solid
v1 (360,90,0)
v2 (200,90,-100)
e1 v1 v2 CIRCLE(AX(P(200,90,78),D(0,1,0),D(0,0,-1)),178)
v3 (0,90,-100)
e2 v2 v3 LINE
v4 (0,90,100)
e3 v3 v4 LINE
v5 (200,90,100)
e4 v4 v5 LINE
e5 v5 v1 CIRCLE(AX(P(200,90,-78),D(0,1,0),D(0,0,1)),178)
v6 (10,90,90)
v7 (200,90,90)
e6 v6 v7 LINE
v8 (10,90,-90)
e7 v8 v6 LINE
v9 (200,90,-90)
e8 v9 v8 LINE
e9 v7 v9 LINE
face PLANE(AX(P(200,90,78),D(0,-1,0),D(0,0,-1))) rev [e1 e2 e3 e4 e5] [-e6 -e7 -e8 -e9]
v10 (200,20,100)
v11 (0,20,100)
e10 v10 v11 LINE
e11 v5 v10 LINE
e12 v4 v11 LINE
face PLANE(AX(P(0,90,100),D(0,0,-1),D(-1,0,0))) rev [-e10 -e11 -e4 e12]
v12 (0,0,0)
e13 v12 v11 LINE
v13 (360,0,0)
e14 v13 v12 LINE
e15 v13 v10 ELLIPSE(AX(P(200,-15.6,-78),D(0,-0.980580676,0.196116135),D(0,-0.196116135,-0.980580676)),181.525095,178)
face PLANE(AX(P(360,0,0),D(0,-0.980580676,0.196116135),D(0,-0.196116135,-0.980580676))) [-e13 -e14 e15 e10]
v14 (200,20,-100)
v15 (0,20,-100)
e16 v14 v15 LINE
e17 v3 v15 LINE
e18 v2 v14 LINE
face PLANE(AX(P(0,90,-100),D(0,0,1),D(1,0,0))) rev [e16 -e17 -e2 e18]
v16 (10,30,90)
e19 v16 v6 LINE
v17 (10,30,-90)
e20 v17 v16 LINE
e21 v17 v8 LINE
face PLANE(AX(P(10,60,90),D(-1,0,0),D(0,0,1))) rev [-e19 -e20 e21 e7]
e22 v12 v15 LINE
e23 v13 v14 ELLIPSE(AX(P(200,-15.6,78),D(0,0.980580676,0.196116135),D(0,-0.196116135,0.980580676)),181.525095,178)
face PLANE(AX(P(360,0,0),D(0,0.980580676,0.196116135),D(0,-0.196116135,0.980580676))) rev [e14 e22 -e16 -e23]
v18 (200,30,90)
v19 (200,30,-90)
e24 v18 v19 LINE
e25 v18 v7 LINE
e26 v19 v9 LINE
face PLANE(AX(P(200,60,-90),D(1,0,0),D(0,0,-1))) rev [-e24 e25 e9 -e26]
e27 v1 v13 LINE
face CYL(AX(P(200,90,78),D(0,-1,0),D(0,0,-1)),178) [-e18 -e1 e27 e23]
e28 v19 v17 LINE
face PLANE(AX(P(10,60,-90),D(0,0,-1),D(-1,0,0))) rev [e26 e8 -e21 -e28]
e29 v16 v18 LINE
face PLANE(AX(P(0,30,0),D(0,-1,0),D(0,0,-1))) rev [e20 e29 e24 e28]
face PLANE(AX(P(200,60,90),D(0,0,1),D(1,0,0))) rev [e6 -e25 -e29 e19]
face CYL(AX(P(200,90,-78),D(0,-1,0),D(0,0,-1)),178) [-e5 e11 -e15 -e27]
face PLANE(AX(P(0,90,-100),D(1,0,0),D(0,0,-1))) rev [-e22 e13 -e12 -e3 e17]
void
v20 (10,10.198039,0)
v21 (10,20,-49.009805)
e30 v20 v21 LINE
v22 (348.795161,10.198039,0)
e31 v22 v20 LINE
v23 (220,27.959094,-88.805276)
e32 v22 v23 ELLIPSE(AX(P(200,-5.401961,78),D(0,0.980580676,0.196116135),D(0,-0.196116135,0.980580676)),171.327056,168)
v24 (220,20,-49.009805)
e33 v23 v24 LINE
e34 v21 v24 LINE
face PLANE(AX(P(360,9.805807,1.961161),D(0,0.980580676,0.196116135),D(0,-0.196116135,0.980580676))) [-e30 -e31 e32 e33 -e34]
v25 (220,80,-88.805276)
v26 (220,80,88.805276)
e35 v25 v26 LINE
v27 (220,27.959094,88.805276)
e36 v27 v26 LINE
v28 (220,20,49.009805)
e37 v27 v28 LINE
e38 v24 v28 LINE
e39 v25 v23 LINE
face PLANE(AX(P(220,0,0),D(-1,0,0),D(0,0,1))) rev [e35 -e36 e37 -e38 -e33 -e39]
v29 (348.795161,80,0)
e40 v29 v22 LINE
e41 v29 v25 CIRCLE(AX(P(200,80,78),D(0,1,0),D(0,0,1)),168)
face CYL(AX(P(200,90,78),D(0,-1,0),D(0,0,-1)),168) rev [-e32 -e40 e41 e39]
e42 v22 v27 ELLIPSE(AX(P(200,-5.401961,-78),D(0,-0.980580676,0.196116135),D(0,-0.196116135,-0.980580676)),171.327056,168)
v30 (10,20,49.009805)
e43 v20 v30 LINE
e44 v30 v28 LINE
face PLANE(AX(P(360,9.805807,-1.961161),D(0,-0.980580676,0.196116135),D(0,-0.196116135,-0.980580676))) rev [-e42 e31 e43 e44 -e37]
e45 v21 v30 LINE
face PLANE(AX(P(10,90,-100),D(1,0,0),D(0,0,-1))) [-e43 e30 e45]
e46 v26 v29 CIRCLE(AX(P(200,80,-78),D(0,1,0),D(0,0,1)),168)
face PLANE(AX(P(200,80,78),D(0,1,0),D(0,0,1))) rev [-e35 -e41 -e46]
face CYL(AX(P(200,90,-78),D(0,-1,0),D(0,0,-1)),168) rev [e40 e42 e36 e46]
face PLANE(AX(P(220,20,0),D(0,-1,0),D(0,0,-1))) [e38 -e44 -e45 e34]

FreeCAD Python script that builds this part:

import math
import FreeCAD as App
import Part
import Sketcher
from FreeCAD import Vector
Q = App.Units.Quantity


def faces_at(feature, points):
    """Names of the faces that lie closest to the given points."""
    faces = feature.Shape.Faces
    near = lambda p: min(range(len(faces)), key=lambda i: faces[i].distToShape(Part.Vertex(*p))[0])
    return sorted({f"Face{near(p) + 1}" for p in points})

doc = App.newDocument("Part")
body = doc.addObject("PartDesign::Body", "Body")

sketch1 = body.newObject("Sketcher::SketchObject", "Sketch")
sketch1.AttachmentSupport = (doc.getObject("XZ_Plane"), [""])
sketch1.MapMode = "FlatFace"
sketch1.addGeometry([
    Part.LineSegment(Vector(0, -100, 0), Vector(0, 100, 0)),
    Part.LineSegment(Vector(0, 100, 0), Vector(200, 100, 0)),
    Part.ArcOfCircle(Part.Circle(Vector(200, -78, 0), Vector(0, 0, 1), 178), math.radians(25.989234), math.radians(90)),
    Part.ArcOfCircle(Part.Circle(Vector(200, 78, 0), Vector(0, 0, 1), 178), math.radians(-90), math.radians(-25.989234)),
    Part.LineSegment(Vector(200, -100, 0), Vector(0, -100, 0)),
], False)
sketch1.addConstraint([
    Sketcher.Constraint("Coincident", 0, 2, 1, 1),
    Sketcher.Constraint("Tangent", 1, 2, 2, 2),
    Sketcher.Constraint("Coincident", 2, 1, 3, 2),
    Sketcher.Constraint("Tangent", 3, 1, 4, 1),
    Sketcher.Constraint("Coincident", 4, 2, 0, 1),
    Sketcher.Constraint("Vertical", 0),
    Sketcher.Constraint("Horizontal", 1),
    Sketcher.Constraint("Horizontal", 4),
    Sketcher.Constraint("Equal", 2, 3),
    Sketcher.Constraint("Symmetric", 0, 2, 4, 2, -1, 1),
    Sketcher.Constraint("PointOnObject", 2, 1, -1),
    Sketcher.Constraint("Equal", 4, 0),
    Sketcher.Constraint("Radius", 2, Q("178 mm")),
    Sketcher.Constraint("DistanceX", 1, 1, 1, 2, Q("200 mm")),
])
pad1 = body.newObject("PartDesign::Pad", "Pad")
pad1.Profile = sketch1
pad1.Length = 90
pad1.Reversed = True

sketch2 = body.newObject("Sketcher::SketchObject", "Sketch001")
sketch2.AttachmentSupport = (doc.getObject("YZ_Plane"), [""])
sketch2.MapMode = "FlatFace"
sketch2.addGeometry([
    Part.LineSegment(Vector(0, -100, 0), Vector(0, 0, 0)),
    Part.LineSegment(Vector(0, 0, 0), Vector(20, -100, 0)),
    Part.LineSegment(Vector(20, -100, 0), Vector(0, -100, 0)),
    Part.LineSegment(Vector(20, 100, 0), Vector(0, 0, 0)),
    Part.LineSegment(Vector(0, 0, 0), Vector(0, 100, 0)),
    Part.LineSegment(Vector(0, 100, 0), Vector(20, 100, 0)),
], False)
sketch2.addConstraint([
    Sketcher.Constraint("Coincident", 0, 2, 1, 1),
    Sketcher.Constraint("Coincident", 1, 2, 2, 1),
    Sketcher.Constraint("Coincident", 2, 2, 0, 1),
    Sketcher.Constraint("Coincident", 3, 2, 4, 1),
    Sketcher.Constraint("Coincident", 4, 2, 5, 1),
    Sketcher.Constraint("Coincident", 5, 2, 3, 1),
    Sketcher.Constraint("Vertical", 0),
    Sketcher.Constraint("Horizontal", 2),
    Sketcher.Constraint("Vertical", 4),
    Sketcher.Constraint("Horizontal", 5),
    Sketcher.Constraint("Coincident", 0, 2, -1, 1),
    Sketcher.Constraint("Coincident", 3, 2, -1, 1),
    Sketcher.Constraint("Symmetric", 1, 2, 5, 2, -1),
    Sketcher.Constraint("DistanceX", 2, 2, 2, 1, Q("20 mm")),
    Sketcher.Constraint("DistanceY", 0, 1, 0, 2, Q("100 mm")),
])
pocket1 = body.newObject("PartDesign::Pocket", "Pocket")
pocket1.Profile = sketch2
pocket1.Type = "ThroughAll"
pocket1.Reversed = True
doc.recompute()

thickness = body.newObject("PartDesign::Thickness", "Thickness")
thickness.Base = (pocket1, faces_at(pocket1, [(180, 90, 0)]))
thickness.Value = 10
thickness.Reversed = True
thickness.Join = "Intersection"

sketch3 = body.newObject("Sketcher::SketchObject", "Sketch002")
sketch3.AttachmentSupport = (doc.getObject("XZ_Plane"), [""])
sketch3.MapMode = "FlatFace"
sketch3.AttachmentOffset = App.Placement(Vector(0, 0, -80), App.Rotation())
sketch3.addGeometry([
    Part.LineSegment(Vector(200, -90, 0), Vector(200, 90, 0)),
    Part.ArcOfCircle(Part.Circle(Vector(200, -78, 0), Vector(0, 0, 1), 168), math.radians(27.664004), math.radians(90)),
    Part.ArcOfCircle(Part.Circle(Vector(200, 78, 0), Vector(0, 0, 1), 168), math.radians(-90), math.radians(-27.664004)),
], False)
sketch3.addConstraint([
    Sketcher.Constraint("Coincident", 0, 2, 1, 2),
    Sketcher.Constraint("Coincident", 1, 1, 2, 2),
    Sketcher.Constraint("Coincident", 2, 1, 0, 1),
    Sketcher.Constraint("Vertical", 0),
    Sketcher.Constraint("Equal", 1, 2),
    Sketcher.Constraint("Symmetric", 1, 3, 2, 3, -1),
    Sketcher.Constraint("Vertical", 2, 3, 0, 2),
    Sketcher.Constraint("Radius", 1, Q("168 mm")),
    Sketcher.Constraint("DistanceY", 0, 1, 0, 2, Q("180 mm")),
    Sketcher.Constraint("DistanceX", -1, 1, 1, 3, Q("200 mm")),
])
pad2 = body.newObject("PartDesign::Pad", "Pad001")
pad2.Profile = sketch3
pad2.Length = 10
pad2.Reversed = True

sketch4 = body.newObject("Sketcher::SketchObject", "Sketch003")
sketch4.AttachmentSupport = (doc.getObject("YZ_Plane"), [""])
sketch4.MapMode = "FlatFace"
sketch4.addGeometry([
    Part.LineSegment(Vector(80, -90, 0), Vector(20, -90, 0)),
    Part.LineSegment(Vector(20, -90, 0), Vector(20, 90, 0)),
    Part.LineSegment(Vector(20, 90, 0), Vector(80, 90, 0)),
    Part.LineSegment(Vector(80, 90, 0), Vector(80, -90, 0)),
], False)
sketch4.addConstraint([
    Sketcher.Constraint("Coincident", 0, 2, 1, 1),
    Sketcher.Constraint("Coincident", 1, 2, 2, 1),
    Sketcher.Constraint("Coincident", 2, 2, 3, 1),
    Sketcher.Constraint("Coincident", 3, 2, 0, 1),
    Sketcher.Constraint("Horizontal", 0),
    Sketcher.Constraint("Vertical", 1),
    Sketcher.Constraint("Horizontal", 2),
    Sketcher.Constraint("Vertical", 3),
    Sketcher.Constraint("DistanceX", 0, 2, 0, 1, Q("60 mm")),
    Sketcher.Constraint("DistanceY", 1, 1, 1, 2, Q("180 mm")),
    Sketcher.Constraint("DistanceX", -1, 1, 0, 2, Q("20 mm")),
    Sketcher.Constraint("DistanceY", 0, 2, -1, 1, Q("90 mm")),
])
pad3 = body.newObject("PartDesign::Pad", "Pad002")
pad3.Profile = sketch4
pad3.Length = 220

sketch5 = body.newObject("Sketcher::SketchObject", "Sketch004")
sketch5.AttachmentSupport = (doc.getObject("YZ_Plane"), [""])
sketch5.MapMode = "FlatFace"
sketch5.addGeometry([
    Part.LineSegment(Vector(80, -90, 0), Vector(20, -90, 0)),
    Part.LineSegment(Vector(20, -90, 0), Vector(20, 90, 0)),
    Part.LineSegment(Vector(20, 90, 0), Vector(80, 90, 0)),
    Part.LineSegment(Vector(80, 90, 0), Vector(80, -90, 0)),
], False)
sketch5.addConstraint([
    Sketcher.Constraint("Coincident", 0, 2, 1, 1),
    Sketcher.Constraint("Coincident", 1, 2, 2, 1),
    Sketcher.Constraint("Coincident", 2, 2, 3, 1),
    Sketcher.Constraint("Coincident", 3, 2, 0, 1),
    Sketcher.Constraint("Horizontal", 0),
    Sketcher.Constraint("Vertical", 1),
    Sketcher.Constraint("Horizontal", 2),
    Sketcher.Constraint("Vertical", 3),
    Sketcher.Constraint("DistanceX", 0, 2, 0, 1, Q("60 mm")),
    Sketcher.Constraint("DistanceY", 1, 1, 1, 2, Q("180 mm")),
    Sketcher.Constraint("DistanceX", -1, 1, 0, 2, Q("20 mm")),
    Sketcher.Constraint("DistanceY", 0, 2, -1, 1, Q("90 mm")),
])
pocket2 = body.newObject("PartDesign::Pocket", "Pocket001")
pocket2.Profile = sketch5
pocket2.Length = 200
pocket2.Reversed = True

sketch6 = body.newObject("Sketcher::SketchObject", "Sketch005")
sketch6.AttachmentSupport = (doc.getObject("YZ_Plane"), [""])
sketch6.MapMode = "FlatFace"
sketch6.addGeometry([
    Part.LineSegment(Vector(80, -90, 0), Vector(20, -90, 0)),
    Part.LineSegment(Vector(20, -90, 0), Vector(20, 90, 0)),
    Part.LineSegment(Vector(20, 90, 0), Vector(80, 90, 0)),
    Part.LineSegment(Vector(80, 90, 0), Vector(80, -90, 0)),
], False)
sketch6.addConstraint([
    Sketcher.Constraint("Coincident", 0, 2, 1, 1),
    Sketcher.Constraint("Coincident", 1, 2, 2, 1),
    Sketcher.Constraint("Coincident", 2, 2, 3, 1),
    Sketcher.Constraint("Coincident", 3, 2, 0, 1),
    Sketcher.Constraint("Horizontal", 0),
    Sketcher.Constraint("Vertical", 1),
    Sketcher.Constraint("Horizontal", 2),
    Sketcher.Constraint("Vertical", 3),
    Sketcher.Constraint("DistanceX", 0, 2, 0, 1, Q("60 mm")),
    Sketcher.Constraint("DistanceY", 1, 1, 1, 2, Q("180 mm")),
    Sketcher.Constraint("DistanceX", -1, 1, 0, 2, Q("20 mm")),
    Sketcher.Constraint("DistanceY", 0, 2, -1, 1, Q("90 mm")),
])
pad4 = body.newObject("PartDesign::Pad", "Pad003")
pad4.Profile = sketch6
pad4.Length = 10

sketch7 = body.newObject("Sketcher::SketchObject", "Sketch006")
sketch7.AttachmentSupport = (doc.getObject("XZ_Plane"), [""])
sketch7.MapMode = "FlatFace"
sketch7.AttachmentOffset = App.Placement(Vector(0, 0, -90), App.Rotation())
sketch7.addGeometry([
    Part.LineSegment(Vector(10, -90, 0), Vector(10, 90, 0)),
    Part.LineSegment(Vector(10, 90, 0), Vector(200, 90, 0)),
    Part.LineSegment(Vector(200, 90, 0), Vector(200, -90, 0)),
    Part.LineSegment(Vector(200, -90, 0), Vector(10, -90, 0)),
], False)
sketch7.addConstraint([
    Sketcher.Constraint("Coincident", 0, 2, 1, 1),
    Sketcher.Constraint("Coincident", 1, 2, 2, 1),
    Sketcher.Constraint("Coincident", 2, 2, 3, 1),
    Sketcher.Constraint("Coincident", 3, 2, 0, 1),
    Sketcher.Constraint("Vertical", 0),
    Sketcher.Constraint("Horizontal", 1),
    Sketcher.Constraint("Vertical", 2),
    Sketcher.Constraint("Horizontal", 3),
    Sketcher.Constraint("DistanceX", 1, 1, 1, 2, Q("190 mm")),
    Sketcher.Constraint("DistanceY", 0, 1, 0, 2, Q("180 mm")),
    Sketcher.Constraint("DistanceX", -1, 1, 0, 2, Q("10 mm")),
    Sketcher.Constraint("DistanceY", -1, 1, 0, 2, Q("90 mm")),
])
pad5 = body.newObject("PartDesign::Pad", "Pad004")
pad5.Profile = sketch7
pad5.Length = 70

sketch8 = body.newObject("Sketcher::SketchObject", "Sketch007")
sketch8.AttachmentSupport = (doc.getObject("XZ_Plane"), [""])
sketch8.MapMode = "FlatFace"
sketch8.AttachmentOffset = App.Placement(Vector(0, 0, -90), App.Rotation())
sketch8.addGeometry([
    Part.LineSegment(Vector(10, -90, 0), Vector(10, 90, 0)),
    Part.LineSegment(Vector(10, 90, 0), Vector(200, 90, 0)),
    Part.LineSegment(Vector(200, 90, 0), Vector(200, -90, 0)),
    Part.LineSegment(Vector(200, -90, 0), Vector(10, -90, 0)),
], False)
sketch8.addConstraint([
    Sketcher.Constraint("Coincident", 0, 2, 1, 1),
    Sketcher.Constraint("Coincident", 1, 2, 2, 1),
    Sketcher.Constraint("Coincident", 2, 2, 3, 1),
    Sketcher.Constraint("Coincident", 3, 2, 0, 1),
    Sketcher.Constraint("Vertical", 0),
    Sketcher.Constraint("Horizontal", 1),
    Sketcher.Constraint("Vertical", 2),
    Sketcher.Constraint("Horizontal", 3),
    Sketcher.Constraint("DistanceX", 1, 1, 1, 2, Q("190 mm")),
    Sketcher.Constraint("DistanceY", 0, 1, 0, 2, Q("180 mm")),
    Sketcher.Constraint("DistanceX", -1, 1, 0, 2, Q("10 mm")),
    Sketcher.Constraint("DistanceY", -1, 1, 0, 2, Q("90 mm")),
])
pocket3 = body.newObject("PartDesign::Pocket", "Pocket002")
pocket3.Profile = sketch8
pocket3.Length = 30
pocket3.Reversed = True

sketch9 = body.newObject("Sketcher::SketchObject", "Sketch008")
sketch9.AttachmentSupport = (doc.getObject("XZ_Plane"), [""])
sketch9.MapMode = "FlatFace"
sketch9.AttachmentOffset = App.Placement(Vector(0, 0, -90), App.Rotation())
sketch9.addGeometry([
    Part.LineSegment(Vector(10, -90, 0), Vector(10, 90, 0)),
    Part.LineSegment(Vector(10, 90, 0), Vector(200, 90, 0)),
    Part.LineSegment(Vector(200, 90, 0), Vector(200, -90, 0)),
    Part.LineSegment(Vector(200, -90, 0), Vector(10, -90, 0)),
], False)
sketch9.addConstraint([
    Sketcher.Constraint("Coincident", 0, 2, 1, 1),
    Sketcher.Constraint("Coincident", 1, 2, 2, 1),
    Sketcher.Constraint("Coincident", 2, 2, 3, 1),
    Sketcher.Constraint("Coincident", 3, 2, 0, 1),
    Sketcher.Constraint("Vertical", 0),
    Sketcher.Constraint("Horizontal", 1),
    Sketcher.Constraint("Vertical", 2),
    Sketcher.Constraint("Horizontal", 3),
    Sketcher.Constraint("DistanceX", 1, 1, 1, 2, Q("190 mm")),
    Sketcher.Constraint("DistanceY", 0, 1, 0, 2, Q("180 mm")),
    Sketcher.Constraint("DistanceX", -1, 1, 0, 2, Q("10 mm")),
    Sketcher.Constraint("DistanceY", -1, 1, 0, 2, Q("90 mm")),
])
pocket4 = body.newObject("PartDesign::Pocket", "Pocket003")
pocket4.Profile = sketch9
pocket4.Length = 50
pocket4.Reversed = True

sketch10 = body.newObject("Sketcher::SketchObject", "Sketch009")
sketch10.AttachmentSupport = (doc.getObject("XZ_Plane"), [""])
sketch10.MapMode = "FlatFace"
sketch10.AttachmentOffset = App.Placement(Vector(0, 0, -90), App.Rotation())
sketch10.addGeometry([
    Part.LineSegment(Vector(10, -90, 0), Vector(10, 90, 0)),
    Part.LineSegment(Vector(10, 90, 0), Vector(200, 90, 0)),
    Part.LineSegment(Vector(200, 90, 0), Vector(200, -90, 0)),
    Part.LineSegment(Vector(200, -90, 0), Vector(10, -90, 0)),
], False)
sketch10.addConstraint([
    Sketcher.Constraint("Coincident", 0, 2, 1, 1),
    Sketcher.Constraint("Coincident", 1, 2, 2, 1),
    Sketcher.Constraint("Coincident", 2, 2, 3, 1),
    Sketcher.Constraint("Coincident", 3, 2, 0, 1),
    Sketcher.Constraint("Vertical", 0),
    Sketcher.Constraint("Horizontal", 1),
    Sketcher.Constraint("Vertical", 2),
    Sketcher.Constraint("Horizontal", 3),
    Sketcher.Constraint("DistanceX", 1, 1, 1, 2, Q("190 mm")),
    Sketcher.Constraint("DistanceY", 0, 1, 0, 2, Q("180 mm")),
    Sketcher.Constraint("DistanceX", -1, 1, 0, 2, Q("10 mm")),
    Sketcher.Constraint("DistanceY", -1, 1, 0, 2, Q("90 mm")),
])
pocket5 = body.newObject("PartDesign::Pocket", "Pocket004")
pocket5.Profile = sketch10
pocket5.Length = 60
pocket5.Reversed = True

doc.recompute()
